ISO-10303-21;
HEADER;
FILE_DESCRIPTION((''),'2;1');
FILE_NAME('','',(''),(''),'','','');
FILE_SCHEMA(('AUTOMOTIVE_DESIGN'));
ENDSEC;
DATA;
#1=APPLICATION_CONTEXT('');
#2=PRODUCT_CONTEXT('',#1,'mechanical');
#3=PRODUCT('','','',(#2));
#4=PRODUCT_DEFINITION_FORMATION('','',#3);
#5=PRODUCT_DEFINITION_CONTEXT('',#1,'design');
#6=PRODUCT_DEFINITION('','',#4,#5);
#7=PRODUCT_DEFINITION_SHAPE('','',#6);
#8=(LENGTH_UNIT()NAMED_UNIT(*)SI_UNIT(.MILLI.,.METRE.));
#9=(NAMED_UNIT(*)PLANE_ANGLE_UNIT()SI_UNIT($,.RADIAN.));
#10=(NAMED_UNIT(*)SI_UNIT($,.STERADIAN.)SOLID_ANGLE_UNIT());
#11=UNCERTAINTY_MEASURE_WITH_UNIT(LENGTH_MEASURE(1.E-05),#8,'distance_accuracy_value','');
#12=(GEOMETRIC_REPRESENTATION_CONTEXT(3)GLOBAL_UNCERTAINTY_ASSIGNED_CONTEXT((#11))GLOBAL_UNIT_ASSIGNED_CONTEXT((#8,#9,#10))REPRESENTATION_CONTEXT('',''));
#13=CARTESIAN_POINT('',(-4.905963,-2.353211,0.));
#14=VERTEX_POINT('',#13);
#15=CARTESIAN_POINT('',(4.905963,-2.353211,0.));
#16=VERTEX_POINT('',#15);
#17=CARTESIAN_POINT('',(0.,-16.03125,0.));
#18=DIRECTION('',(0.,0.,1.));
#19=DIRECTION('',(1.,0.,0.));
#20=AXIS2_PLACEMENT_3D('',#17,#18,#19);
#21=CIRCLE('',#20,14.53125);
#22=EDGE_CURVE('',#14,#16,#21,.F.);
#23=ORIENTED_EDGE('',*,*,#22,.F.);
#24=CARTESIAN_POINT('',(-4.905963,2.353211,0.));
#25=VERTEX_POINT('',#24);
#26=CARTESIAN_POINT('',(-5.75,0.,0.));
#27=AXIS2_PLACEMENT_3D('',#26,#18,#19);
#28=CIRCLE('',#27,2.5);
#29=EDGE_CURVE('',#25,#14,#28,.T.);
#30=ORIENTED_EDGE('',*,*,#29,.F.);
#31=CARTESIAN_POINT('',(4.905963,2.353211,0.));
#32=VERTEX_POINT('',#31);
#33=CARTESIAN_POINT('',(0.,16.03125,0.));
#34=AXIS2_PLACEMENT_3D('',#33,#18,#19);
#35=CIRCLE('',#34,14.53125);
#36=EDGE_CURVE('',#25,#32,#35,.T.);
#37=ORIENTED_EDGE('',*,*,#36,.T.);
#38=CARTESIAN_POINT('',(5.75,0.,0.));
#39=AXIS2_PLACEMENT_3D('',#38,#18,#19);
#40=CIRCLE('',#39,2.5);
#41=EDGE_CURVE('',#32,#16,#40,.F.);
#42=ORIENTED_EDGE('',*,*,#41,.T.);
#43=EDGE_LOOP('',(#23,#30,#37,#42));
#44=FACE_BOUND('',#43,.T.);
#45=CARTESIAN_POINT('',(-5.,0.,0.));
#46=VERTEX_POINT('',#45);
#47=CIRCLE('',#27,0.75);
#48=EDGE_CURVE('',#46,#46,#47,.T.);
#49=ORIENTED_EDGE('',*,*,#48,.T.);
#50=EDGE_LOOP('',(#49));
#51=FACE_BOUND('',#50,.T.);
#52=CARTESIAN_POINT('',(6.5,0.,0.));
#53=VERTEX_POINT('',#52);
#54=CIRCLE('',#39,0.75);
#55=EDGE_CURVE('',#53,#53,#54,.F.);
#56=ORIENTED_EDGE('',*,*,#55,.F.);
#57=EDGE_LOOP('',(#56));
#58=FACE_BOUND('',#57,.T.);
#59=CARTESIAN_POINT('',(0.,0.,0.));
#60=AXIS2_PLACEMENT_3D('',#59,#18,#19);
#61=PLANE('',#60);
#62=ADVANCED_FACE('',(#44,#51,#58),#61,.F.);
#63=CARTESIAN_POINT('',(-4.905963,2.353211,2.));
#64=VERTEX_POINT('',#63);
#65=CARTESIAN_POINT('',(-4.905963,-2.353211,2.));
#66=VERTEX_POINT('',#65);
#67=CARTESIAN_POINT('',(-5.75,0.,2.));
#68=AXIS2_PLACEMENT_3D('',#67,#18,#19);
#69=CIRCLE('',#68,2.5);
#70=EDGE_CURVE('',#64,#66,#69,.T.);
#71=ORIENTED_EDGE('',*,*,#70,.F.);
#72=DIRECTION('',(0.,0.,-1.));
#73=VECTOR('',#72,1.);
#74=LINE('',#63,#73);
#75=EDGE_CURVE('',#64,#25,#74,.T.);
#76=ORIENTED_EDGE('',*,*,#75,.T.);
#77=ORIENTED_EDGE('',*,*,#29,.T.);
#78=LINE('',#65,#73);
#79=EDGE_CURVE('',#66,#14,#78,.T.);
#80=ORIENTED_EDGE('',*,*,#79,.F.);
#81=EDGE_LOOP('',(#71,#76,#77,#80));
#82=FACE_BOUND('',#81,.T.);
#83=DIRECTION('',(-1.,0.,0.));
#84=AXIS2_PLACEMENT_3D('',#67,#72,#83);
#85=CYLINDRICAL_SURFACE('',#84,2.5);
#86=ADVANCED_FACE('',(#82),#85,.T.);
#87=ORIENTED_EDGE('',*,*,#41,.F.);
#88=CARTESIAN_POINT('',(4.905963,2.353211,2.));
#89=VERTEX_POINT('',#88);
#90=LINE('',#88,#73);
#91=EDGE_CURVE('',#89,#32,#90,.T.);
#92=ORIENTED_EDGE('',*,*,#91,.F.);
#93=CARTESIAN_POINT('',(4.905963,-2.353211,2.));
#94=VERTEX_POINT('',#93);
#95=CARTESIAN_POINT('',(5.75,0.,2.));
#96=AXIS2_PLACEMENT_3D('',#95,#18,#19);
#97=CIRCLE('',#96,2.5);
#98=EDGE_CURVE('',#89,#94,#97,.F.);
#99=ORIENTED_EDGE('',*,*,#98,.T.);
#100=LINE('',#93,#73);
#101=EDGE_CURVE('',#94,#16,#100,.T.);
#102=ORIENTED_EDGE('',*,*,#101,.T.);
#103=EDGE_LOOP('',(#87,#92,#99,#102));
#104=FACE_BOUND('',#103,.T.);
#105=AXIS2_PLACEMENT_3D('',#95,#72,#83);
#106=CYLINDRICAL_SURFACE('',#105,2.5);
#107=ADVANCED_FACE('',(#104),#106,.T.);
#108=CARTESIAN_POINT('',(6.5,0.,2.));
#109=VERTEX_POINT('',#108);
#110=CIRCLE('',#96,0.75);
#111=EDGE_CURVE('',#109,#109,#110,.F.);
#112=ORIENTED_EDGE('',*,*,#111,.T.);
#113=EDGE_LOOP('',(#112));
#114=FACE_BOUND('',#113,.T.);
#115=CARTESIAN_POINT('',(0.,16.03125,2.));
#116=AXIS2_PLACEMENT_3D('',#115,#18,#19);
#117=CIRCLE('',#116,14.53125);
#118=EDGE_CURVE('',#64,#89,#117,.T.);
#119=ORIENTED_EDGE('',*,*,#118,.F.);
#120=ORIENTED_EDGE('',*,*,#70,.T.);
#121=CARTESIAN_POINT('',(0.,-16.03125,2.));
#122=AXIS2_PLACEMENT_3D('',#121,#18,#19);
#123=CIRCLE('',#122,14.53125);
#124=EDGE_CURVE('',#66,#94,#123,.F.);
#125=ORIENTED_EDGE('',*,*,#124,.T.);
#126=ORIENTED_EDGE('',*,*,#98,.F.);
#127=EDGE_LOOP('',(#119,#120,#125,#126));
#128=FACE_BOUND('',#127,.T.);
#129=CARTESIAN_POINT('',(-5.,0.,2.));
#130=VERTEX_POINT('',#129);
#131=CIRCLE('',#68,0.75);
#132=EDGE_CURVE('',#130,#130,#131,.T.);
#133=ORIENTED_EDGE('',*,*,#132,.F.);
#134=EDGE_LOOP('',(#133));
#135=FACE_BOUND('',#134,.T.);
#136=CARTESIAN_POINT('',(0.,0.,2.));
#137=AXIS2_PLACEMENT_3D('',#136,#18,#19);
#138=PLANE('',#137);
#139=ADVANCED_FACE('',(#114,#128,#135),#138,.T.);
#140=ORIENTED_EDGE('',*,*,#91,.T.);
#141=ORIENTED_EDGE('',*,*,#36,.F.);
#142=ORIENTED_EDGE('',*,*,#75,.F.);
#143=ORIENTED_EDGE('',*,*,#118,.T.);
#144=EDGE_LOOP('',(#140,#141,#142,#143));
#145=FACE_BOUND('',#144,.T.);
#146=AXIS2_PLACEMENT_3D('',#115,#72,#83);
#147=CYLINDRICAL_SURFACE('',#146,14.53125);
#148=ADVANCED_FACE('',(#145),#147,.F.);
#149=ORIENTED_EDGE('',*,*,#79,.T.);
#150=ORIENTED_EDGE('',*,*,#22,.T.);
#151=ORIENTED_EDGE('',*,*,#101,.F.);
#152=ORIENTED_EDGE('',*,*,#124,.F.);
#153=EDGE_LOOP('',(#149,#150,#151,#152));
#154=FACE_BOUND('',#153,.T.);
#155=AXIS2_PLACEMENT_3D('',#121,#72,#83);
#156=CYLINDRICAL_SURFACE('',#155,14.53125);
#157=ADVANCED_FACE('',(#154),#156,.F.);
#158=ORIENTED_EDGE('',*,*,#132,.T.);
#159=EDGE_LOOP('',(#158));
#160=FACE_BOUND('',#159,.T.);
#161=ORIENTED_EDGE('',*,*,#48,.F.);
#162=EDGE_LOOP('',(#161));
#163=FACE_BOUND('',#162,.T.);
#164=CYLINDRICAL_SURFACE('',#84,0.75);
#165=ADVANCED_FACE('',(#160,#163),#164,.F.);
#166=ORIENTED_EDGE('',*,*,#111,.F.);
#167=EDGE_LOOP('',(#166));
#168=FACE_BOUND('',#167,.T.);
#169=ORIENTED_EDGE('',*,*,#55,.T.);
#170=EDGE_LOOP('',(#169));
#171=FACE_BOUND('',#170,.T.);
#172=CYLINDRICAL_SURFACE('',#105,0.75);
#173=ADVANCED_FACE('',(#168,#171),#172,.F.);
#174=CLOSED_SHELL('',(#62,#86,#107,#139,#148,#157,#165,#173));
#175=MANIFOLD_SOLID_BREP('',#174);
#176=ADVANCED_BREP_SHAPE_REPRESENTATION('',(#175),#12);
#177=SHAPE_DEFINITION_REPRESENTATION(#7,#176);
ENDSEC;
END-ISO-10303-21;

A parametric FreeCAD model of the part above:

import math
import FreeCAD as App
import Part
import Sketcher
from FreeCAD import Vector

doc = App.newDocument("Part")
body = doc.addObject("PartDesign::Body", "Body")

# Sketch on XY plane
sketch1 = body.newObject("Sketcher::SketchObject", "Sketch")
sketch1.AttachmentSupport = (doc.getObject("XY_Plane"), [""])
sketch1.MapMode = "FlatFace"
sketch1.addGeometry(Part.ArcOfCircle(Part.Circle(Vector(-5.8, 0, 0), Vector(0, 0, 1), 2.5), math.radians(70), math.radians(290)), False)
sketch1.addGeometry(Part.ArcOfCircle(Part.Circle(Vector(0, -16, 0), Vector(0, 0, 1), 14.5), math.radians(70), math.radians(110)), False)
sketch1.addGeometry(Part.ArcOfCircle(Part.Circle(Vector(5.8, 0, 0), Vector(0, 0, 1), 2.5), math.radians(-110), math.radians(110)), False)
sketch1.addGeometry(Part.ArcOfCircle(Part.Circle(Vector(0, 16, 0), Vector(0, 0, 1), 14.5), math.radians(-110), math.radians(-70)), False)
sketch1.addGeometry(Part.Circle(Vector(-5.8, 0, 0), Vector(0, 0, 1), 0.8), False)
sketch1.addGeometry(Part.Circle(Vector(5.8, 0, 0), Vector(0, 0, 1), 0.8), False)
sketch1.addConstraint(Sketcher.Constraint("Tangent", 0, 2, 1, 2))
sketch1.addConstraint(Sketcher.Constraint("Tangent", 1, 1, 2, 1))
sketch1.addConstraint(Sketcher.Constraint("Tangent", 2, 2, 3, 2))
sketch1.addConstraint(Sketcher.Constraint("Tangent", 3, 1, 0, 1))
sketch1.addConstraint(Sketcher.Constraint("Coincident", 4, 3, 0, 3))
sketch1.addConstraint(Sketcher.Constraint("Coincident", 5, 3, 2, 3))
sketch1.addConstraint(Sketcher.Constraint("Equal", 0, 2))
sketch1.addConstraint(Sketcher.Constraint("Equal", 1, 3))
sketch1.addConstraint(Sketcher.Constraint("Equal", 4, 5))
sketch1.addConstraint(Sketcher.Constraint("Symmetric", 0, 3, 2, 3, -1, 1))
sketch1.addConstraint(Sketcher.Constraint("PointOnObject", 0, 3, -1))
sketch1.addConstraint(Sketcher.Constraint("Diameter", 4, 1.5))
sketch1.addConstraint(Sketcher.Constraint("Radius", 0, 2.5))
sketch1.addConstraint(Sketcher.Constraint("DistanceX", 0, 3, 2, 3, 11.5))
sketch1.addConstraint(Sketcher.Constraint("Radius", 1, 14.53125))
pad1 = body.newObject("PartDesign::Pad", "Pad")
pad1.Profile = sketch1
pad1.Length = 2

doc.recompute()
